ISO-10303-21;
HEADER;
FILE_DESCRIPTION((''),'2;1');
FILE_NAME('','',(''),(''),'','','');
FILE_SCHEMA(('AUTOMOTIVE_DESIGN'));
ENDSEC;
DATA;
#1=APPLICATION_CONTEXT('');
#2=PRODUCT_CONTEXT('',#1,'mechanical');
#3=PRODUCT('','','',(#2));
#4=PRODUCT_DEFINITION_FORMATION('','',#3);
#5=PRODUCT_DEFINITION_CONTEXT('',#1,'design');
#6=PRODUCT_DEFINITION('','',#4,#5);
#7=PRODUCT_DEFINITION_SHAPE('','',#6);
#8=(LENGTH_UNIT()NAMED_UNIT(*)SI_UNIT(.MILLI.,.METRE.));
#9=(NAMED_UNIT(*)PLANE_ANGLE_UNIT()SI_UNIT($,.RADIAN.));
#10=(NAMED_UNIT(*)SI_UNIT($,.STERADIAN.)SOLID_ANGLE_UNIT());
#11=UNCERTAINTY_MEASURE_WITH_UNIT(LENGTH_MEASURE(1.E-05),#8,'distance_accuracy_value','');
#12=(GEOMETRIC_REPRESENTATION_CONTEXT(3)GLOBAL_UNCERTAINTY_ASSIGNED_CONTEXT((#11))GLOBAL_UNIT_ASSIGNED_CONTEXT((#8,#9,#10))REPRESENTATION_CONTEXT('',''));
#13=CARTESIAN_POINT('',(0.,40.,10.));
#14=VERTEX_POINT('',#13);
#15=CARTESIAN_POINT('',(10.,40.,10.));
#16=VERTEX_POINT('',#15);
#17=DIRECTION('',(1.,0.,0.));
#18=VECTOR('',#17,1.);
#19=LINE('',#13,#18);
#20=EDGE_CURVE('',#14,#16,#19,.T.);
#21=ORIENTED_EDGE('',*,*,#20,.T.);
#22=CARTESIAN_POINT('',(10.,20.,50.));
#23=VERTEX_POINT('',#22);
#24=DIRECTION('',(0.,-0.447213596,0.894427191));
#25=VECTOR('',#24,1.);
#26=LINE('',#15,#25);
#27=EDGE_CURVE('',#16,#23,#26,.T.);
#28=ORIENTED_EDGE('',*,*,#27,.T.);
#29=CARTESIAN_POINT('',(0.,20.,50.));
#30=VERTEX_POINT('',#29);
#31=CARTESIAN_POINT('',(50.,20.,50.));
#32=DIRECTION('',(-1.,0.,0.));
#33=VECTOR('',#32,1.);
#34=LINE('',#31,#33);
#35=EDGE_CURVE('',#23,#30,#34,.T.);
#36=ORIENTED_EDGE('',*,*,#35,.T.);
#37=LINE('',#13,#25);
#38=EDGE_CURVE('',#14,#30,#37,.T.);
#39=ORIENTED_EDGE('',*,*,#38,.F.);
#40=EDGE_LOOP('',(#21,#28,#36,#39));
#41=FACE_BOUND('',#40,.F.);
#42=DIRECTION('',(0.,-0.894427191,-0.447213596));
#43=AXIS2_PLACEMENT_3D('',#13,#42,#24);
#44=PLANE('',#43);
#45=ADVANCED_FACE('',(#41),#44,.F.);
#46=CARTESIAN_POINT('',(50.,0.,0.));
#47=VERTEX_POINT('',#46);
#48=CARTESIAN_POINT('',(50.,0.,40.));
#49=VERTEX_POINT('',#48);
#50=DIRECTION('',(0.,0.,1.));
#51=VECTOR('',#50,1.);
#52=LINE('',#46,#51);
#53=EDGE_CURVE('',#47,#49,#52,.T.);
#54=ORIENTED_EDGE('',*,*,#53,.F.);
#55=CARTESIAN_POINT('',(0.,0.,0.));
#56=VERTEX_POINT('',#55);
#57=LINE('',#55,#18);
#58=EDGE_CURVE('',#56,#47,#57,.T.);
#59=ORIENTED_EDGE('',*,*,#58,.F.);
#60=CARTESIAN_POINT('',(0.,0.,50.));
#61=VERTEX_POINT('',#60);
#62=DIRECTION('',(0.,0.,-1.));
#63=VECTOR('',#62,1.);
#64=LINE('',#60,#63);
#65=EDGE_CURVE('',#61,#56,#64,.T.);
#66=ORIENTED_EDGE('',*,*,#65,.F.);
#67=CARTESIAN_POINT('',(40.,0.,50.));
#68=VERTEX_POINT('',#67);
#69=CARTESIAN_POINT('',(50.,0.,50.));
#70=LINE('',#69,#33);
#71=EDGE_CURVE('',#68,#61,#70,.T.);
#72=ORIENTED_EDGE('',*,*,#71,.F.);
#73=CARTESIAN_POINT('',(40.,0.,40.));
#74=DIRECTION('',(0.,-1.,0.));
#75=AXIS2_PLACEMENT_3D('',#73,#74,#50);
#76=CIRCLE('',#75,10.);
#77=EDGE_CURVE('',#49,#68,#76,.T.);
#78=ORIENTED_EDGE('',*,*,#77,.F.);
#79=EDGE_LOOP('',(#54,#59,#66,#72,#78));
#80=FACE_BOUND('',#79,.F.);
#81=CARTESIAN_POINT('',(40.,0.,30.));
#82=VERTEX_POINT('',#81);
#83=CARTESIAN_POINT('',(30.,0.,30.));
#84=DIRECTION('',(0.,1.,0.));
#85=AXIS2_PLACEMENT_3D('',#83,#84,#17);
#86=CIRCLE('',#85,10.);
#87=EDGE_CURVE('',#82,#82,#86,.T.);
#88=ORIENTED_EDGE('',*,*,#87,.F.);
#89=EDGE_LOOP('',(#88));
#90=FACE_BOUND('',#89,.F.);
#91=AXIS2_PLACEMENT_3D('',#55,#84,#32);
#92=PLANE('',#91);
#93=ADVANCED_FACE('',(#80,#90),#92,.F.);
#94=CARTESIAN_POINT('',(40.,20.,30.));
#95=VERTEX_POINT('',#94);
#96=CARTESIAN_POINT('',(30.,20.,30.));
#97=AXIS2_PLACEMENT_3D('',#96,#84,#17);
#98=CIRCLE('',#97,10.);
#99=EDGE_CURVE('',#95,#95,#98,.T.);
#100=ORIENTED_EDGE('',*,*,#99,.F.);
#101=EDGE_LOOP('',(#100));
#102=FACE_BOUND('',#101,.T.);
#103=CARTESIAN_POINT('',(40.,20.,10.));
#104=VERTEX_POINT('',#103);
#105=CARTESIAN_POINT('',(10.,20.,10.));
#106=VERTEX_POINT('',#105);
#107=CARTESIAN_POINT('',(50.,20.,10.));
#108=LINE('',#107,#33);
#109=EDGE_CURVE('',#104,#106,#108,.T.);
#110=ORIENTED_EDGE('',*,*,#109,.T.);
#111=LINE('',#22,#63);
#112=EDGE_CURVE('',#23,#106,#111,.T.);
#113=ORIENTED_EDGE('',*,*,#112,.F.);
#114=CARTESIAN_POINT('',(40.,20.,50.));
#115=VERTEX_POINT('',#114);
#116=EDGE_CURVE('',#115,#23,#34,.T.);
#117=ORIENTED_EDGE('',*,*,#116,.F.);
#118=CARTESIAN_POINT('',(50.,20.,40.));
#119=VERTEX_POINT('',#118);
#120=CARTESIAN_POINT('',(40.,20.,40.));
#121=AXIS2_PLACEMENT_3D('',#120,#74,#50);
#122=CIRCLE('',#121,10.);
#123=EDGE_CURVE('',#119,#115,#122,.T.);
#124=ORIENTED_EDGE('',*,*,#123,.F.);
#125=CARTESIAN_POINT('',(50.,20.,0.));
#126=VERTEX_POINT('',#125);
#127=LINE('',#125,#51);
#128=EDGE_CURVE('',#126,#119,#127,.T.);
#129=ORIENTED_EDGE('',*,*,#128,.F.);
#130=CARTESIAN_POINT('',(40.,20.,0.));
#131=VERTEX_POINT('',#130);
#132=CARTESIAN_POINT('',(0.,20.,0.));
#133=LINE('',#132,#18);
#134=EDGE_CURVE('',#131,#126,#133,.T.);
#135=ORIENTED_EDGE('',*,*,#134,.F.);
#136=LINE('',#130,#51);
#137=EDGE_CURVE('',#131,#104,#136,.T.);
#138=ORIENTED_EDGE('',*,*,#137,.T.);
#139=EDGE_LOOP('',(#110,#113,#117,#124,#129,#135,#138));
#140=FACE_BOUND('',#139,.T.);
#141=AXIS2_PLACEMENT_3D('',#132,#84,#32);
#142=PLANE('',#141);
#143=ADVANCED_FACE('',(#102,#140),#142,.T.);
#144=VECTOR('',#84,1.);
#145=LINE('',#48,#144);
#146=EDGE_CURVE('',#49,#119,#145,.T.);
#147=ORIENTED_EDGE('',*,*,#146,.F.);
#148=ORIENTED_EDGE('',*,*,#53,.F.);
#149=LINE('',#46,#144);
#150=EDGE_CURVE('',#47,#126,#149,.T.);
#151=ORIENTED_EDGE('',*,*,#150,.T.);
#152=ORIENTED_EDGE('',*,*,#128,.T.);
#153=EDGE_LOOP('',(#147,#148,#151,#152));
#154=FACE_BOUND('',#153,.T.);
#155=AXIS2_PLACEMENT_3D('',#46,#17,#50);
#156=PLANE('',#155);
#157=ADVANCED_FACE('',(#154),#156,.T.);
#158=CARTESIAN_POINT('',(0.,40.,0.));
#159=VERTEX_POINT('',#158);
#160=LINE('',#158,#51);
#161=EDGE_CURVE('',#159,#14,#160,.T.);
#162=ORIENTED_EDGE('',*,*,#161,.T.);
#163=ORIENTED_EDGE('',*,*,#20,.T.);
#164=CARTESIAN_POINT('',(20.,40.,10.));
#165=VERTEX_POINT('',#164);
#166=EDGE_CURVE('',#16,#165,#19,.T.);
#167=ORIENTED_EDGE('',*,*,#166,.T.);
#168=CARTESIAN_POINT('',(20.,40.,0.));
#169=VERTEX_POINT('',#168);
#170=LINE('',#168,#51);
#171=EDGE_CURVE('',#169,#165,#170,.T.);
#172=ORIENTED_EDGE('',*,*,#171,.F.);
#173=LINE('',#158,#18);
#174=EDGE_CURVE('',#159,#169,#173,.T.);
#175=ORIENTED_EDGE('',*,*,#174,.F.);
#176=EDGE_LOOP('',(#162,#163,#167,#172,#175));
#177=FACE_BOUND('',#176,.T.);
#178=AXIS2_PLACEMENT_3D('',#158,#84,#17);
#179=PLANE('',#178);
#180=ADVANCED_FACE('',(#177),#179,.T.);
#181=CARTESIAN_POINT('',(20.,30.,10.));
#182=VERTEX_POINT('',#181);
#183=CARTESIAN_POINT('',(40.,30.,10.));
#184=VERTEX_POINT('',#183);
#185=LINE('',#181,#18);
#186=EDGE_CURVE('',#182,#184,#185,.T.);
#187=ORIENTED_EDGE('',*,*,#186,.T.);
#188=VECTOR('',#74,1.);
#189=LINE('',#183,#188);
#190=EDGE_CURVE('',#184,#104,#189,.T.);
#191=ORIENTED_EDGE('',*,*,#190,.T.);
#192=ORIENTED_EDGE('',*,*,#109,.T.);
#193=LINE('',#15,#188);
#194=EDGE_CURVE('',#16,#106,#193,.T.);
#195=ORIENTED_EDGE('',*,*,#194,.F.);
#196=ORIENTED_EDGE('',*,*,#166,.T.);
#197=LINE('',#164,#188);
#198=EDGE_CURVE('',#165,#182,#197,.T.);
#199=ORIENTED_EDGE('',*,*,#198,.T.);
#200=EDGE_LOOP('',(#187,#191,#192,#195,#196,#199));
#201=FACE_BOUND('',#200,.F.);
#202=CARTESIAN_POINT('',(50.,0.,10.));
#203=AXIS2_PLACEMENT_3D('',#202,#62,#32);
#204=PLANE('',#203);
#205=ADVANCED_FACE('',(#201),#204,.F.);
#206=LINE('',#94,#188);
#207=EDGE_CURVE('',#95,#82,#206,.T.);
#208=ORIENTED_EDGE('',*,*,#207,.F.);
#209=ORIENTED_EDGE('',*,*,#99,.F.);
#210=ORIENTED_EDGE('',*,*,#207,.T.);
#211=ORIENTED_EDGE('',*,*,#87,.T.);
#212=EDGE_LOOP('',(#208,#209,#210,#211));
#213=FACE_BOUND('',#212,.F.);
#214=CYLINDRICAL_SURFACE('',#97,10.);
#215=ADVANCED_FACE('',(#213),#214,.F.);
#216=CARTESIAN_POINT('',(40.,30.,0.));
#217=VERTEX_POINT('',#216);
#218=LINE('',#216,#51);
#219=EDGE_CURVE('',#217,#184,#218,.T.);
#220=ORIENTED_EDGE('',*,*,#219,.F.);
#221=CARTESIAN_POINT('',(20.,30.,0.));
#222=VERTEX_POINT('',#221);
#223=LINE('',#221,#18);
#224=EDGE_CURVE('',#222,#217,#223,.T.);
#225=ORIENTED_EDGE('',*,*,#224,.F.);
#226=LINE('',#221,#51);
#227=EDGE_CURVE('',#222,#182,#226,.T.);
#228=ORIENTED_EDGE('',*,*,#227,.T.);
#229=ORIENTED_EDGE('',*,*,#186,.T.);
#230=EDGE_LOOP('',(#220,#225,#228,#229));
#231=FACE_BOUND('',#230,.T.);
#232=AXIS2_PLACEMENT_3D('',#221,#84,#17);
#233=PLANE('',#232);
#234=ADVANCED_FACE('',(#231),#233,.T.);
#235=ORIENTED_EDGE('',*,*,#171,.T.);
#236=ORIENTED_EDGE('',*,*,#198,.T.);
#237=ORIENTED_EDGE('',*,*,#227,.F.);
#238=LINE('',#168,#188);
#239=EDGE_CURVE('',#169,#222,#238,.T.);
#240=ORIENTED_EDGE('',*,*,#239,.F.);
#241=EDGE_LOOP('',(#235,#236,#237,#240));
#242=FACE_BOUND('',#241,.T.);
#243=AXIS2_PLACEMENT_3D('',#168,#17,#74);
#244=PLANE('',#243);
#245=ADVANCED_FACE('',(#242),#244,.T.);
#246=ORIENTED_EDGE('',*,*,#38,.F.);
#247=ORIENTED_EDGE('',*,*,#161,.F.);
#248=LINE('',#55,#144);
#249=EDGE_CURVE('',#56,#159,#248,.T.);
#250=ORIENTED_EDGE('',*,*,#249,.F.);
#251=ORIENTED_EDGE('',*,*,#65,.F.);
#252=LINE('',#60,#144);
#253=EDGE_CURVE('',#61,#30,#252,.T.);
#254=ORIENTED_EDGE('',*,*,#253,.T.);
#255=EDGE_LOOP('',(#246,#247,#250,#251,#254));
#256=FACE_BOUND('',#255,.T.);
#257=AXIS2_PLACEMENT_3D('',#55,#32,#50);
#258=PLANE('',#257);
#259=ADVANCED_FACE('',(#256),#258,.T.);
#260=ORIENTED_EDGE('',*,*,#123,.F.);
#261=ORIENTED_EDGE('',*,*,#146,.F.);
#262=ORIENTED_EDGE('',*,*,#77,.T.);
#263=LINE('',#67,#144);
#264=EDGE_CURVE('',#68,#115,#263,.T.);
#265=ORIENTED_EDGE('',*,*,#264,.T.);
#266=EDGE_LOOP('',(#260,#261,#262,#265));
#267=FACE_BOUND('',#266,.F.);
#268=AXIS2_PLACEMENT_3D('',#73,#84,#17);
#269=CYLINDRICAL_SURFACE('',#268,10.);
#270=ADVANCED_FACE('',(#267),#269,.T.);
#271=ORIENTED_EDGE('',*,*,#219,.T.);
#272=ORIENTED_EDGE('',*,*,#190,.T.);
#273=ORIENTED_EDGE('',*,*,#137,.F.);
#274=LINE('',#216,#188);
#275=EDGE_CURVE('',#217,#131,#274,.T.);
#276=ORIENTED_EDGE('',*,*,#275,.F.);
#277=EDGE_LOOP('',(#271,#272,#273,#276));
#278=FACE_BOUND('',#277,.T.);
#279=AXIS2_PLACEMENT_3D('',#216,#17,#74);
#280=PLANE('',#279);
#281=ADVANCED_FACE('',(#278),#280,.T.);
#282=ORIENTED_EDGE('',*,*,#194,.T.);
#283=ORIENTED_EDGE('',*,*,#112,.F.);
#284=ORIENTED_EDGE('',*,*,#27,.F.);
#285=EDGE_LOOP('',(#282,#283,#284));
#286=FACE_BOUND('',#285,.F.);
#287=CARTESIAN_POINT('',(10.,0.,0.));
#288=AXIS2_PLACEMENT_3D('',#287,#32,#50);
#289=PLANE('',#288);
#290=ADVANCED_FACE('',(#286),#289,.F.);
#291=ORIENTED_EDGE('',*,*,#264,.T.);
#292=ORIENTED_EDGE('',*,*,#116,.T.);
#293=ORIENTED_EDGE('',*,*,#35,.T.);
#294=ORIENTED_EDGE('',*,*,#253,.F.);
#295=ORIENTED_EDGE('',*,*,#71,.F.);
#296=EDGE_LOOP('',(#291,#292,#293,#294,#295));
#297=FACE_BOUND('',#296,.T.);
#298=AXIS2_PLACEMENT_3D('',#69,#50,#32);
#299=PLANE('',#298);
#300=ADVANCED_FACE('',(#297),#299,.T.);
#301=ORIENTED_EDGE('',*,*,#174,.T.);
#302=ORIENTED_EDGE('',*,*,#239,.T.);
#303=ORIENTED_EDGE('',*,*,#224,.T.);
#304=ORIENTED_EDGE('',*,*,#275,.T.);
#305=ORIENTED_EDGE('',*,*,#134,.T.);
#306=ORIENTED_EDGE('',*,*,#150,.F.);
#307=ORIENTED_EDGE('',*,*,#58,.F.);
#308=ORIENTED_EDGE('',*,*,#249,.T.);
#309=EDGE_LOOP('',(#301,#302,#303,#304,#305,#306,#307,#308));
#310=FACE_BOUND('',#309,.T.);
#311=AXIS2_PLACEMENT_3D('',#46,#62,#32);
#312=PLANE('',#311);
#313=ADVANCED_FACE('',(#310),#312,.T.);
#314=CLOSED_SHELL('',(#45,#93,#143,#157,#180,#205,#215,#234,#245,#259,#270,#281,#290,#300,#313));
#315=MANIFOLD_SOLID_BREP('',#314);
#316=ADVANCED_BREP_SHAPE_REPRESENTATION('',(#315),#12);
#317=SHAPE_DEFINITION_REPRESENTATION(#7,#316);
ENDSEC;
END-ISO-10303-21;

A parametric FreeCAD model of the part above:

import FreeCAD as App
import Part
import Sketcher
from FreeCAD import Vector


def edges_at(feature, points):
    """Names of the edges that pass closest to the given points."""
    edges = feature.Shape.Edges
    near = lambda p: min(range(len(edges)), key=lambda i: edges[i].distToShape(Part.Vertex(*p))[0])
    return sorted({f"Edge{near(p) + 1}" for p in points})


def add_polygon(sketch, points):
    """Adds a closed chain of lines whose ends are joined by coincident constraints."""
    first, n = sketch.GeometryCount, len(points)
    for a, b in zip(points, points[1:] + points[:1]):
        sketch.addGeometry(Part.LineSegment(App.Vector(*a, 0), App.Vector(*b, 0)), False)
    for i in range(n):
        sketch.addConstraint(Sketcher.Constraint("Coincident", first + i, 2, first + (i + 1) % n, 1))

doc = App.newDocument("Part")
body = doc.addObject("PartDesign::Body", "Body")

sketch1 = body.newObject("Sketcher::SketchObject", "Sketch")
sketch1.AttachmentSupport = (doc.getObject("XZ_Plane"), [""])
sketch1.MapMode = "FlatFace"
add_polygon(sketch1, [(50, 0), (0, 0), (0, 50), (50, 50)])
sketch1.addConstraint([
    Sketcher.Constraint("Horizontal", 0),
    Sketcher.Constraint("Vertical", 1),
    Sketcher.Constraint("Horizontal", 2),
    Sketcher.Constraint("Vertical", 3),
    Sketcher.Constraint("Coincident", 0, 2, -1, 1),
    Sketcher.Constraint("Equal", 2, 1),
    Sketcher.Constraint("DistanceX", 0, 2, 0, 1, 50.0),
])
pad1 = body.newObject("PartDesign::Pad", "Pad")
pad1.Profile = sketch1
pad1.Length = 20
pad1.Reversed = True
doc.recompute()

fillet = body.newObject("PartDesign::Fillet", "Fillet")
fillet.Base = (pad1, edges_at(pad1, [(50, 10, 50)]))
fillet.Radius = 10

sketch2 = body.newObject("Sketcher::SketchObject", "Sketch001")
sketch2.AttachmentSupport = (doc.getObject("XY_Plane"), [""])
sketch2.MapMode = "FlatFace"
add_polygon(sketch2, [(40, 30), (40, 20), (0, 20), (0, 40), (20, 40), (20, 30)])
sketch2.addConstraint([
    Sketcher.Constraint("Vertical", 0),
    Sketcher.Constraint("Horizontal", 1),
    Sketcher.Constraint("Vertical", 2),
    Sketcher.Constraint("Horizontal", 3),
    Sketcher.Constraint("Vertical", 4),
    Sketcher.Constraint("Horizontal", 5),
    Sketcher.Constraint("PointOnObject", 1, 2, -2),
    Sketcher.Constraint("Equal", 3, 5),
    Sketcher.Constraint("Equal", 5, 2),
    Sketcher.Constraint("Equal", 0, 4),
    Sketcher.Constraint("DistanceX", 3, 1, 3, 2, 20.0),
    Sketcher.Constraint("DistanceY", -1, 1, 0, 2, 20.0),
])
pad2 = body.newObject("PartDesign::Pad", "Pad001")
pad2.Profile = sketch2
pad2.Length = 10

sketch3 = body.newObject("Sketcher::SketchObject", "Sketch002")
sketch3.AttachmentSupport = (doc.getObject("YZ_Plane"), [""])
sketch3.MapMode = "FlatFace"
add_polygon(sketch3, [(20, 50), (40, 10), (20, 10)])
sketch3.addConstraint([
    Sketcher.Constraint("Horizontal", 1),
    Sketcher.Constraint("Vertical", 2),
    Sketcher.Constraint("DistanceX", 1, 2, 1, 1, 20.0),
    Sketcher.Constraint("DistanceY", 2, 1, 2, 2, 40.0),
    Sketcher.Constraint("DistanceX", -1, 1, 0, 2, 40.0),
    Sketcher.Constraint("DistanceY", -1, 1, 0, 2, 10.0),
])
pad3 = body.newObject("PartDesign::Pad", "Pad002")
pad3.Profile = sketch3
pad3.Length = 10

sketch4 = body.newObject("Sketcher::SketchObject", "Sketch003")
sketch4.AttachmentSupport = (doc.getObject("XZ_Plane"), [""])
sketch4.MapMode = "FlatFace"
sketch4.AttachmentOffset = App.Placement(Vector(0, 0, -20), App.Rotation())
sketch4.addGeometry(Part.Circle(Vector(30, 30, 0), Vector(0, 0, 1), 10), False)
sketch4.addConstraint([
    Sketcher.Constraint("Diameter", 0, 20.0),
    Sketcher.Constraint("DistanceX", -1, 1, 0, 3, 30.0),
    Sketcher.Constraint("DistanceY", -1, 1, 0, 3, 30.0),
])
pocket1 = body.newObject("PartDesign::Pocket", "Pocket")
pocket1.Profile = sketch4
pocket1.Type = "ThroughAll"
pocket1.Reversed = True

doc.recompute()
